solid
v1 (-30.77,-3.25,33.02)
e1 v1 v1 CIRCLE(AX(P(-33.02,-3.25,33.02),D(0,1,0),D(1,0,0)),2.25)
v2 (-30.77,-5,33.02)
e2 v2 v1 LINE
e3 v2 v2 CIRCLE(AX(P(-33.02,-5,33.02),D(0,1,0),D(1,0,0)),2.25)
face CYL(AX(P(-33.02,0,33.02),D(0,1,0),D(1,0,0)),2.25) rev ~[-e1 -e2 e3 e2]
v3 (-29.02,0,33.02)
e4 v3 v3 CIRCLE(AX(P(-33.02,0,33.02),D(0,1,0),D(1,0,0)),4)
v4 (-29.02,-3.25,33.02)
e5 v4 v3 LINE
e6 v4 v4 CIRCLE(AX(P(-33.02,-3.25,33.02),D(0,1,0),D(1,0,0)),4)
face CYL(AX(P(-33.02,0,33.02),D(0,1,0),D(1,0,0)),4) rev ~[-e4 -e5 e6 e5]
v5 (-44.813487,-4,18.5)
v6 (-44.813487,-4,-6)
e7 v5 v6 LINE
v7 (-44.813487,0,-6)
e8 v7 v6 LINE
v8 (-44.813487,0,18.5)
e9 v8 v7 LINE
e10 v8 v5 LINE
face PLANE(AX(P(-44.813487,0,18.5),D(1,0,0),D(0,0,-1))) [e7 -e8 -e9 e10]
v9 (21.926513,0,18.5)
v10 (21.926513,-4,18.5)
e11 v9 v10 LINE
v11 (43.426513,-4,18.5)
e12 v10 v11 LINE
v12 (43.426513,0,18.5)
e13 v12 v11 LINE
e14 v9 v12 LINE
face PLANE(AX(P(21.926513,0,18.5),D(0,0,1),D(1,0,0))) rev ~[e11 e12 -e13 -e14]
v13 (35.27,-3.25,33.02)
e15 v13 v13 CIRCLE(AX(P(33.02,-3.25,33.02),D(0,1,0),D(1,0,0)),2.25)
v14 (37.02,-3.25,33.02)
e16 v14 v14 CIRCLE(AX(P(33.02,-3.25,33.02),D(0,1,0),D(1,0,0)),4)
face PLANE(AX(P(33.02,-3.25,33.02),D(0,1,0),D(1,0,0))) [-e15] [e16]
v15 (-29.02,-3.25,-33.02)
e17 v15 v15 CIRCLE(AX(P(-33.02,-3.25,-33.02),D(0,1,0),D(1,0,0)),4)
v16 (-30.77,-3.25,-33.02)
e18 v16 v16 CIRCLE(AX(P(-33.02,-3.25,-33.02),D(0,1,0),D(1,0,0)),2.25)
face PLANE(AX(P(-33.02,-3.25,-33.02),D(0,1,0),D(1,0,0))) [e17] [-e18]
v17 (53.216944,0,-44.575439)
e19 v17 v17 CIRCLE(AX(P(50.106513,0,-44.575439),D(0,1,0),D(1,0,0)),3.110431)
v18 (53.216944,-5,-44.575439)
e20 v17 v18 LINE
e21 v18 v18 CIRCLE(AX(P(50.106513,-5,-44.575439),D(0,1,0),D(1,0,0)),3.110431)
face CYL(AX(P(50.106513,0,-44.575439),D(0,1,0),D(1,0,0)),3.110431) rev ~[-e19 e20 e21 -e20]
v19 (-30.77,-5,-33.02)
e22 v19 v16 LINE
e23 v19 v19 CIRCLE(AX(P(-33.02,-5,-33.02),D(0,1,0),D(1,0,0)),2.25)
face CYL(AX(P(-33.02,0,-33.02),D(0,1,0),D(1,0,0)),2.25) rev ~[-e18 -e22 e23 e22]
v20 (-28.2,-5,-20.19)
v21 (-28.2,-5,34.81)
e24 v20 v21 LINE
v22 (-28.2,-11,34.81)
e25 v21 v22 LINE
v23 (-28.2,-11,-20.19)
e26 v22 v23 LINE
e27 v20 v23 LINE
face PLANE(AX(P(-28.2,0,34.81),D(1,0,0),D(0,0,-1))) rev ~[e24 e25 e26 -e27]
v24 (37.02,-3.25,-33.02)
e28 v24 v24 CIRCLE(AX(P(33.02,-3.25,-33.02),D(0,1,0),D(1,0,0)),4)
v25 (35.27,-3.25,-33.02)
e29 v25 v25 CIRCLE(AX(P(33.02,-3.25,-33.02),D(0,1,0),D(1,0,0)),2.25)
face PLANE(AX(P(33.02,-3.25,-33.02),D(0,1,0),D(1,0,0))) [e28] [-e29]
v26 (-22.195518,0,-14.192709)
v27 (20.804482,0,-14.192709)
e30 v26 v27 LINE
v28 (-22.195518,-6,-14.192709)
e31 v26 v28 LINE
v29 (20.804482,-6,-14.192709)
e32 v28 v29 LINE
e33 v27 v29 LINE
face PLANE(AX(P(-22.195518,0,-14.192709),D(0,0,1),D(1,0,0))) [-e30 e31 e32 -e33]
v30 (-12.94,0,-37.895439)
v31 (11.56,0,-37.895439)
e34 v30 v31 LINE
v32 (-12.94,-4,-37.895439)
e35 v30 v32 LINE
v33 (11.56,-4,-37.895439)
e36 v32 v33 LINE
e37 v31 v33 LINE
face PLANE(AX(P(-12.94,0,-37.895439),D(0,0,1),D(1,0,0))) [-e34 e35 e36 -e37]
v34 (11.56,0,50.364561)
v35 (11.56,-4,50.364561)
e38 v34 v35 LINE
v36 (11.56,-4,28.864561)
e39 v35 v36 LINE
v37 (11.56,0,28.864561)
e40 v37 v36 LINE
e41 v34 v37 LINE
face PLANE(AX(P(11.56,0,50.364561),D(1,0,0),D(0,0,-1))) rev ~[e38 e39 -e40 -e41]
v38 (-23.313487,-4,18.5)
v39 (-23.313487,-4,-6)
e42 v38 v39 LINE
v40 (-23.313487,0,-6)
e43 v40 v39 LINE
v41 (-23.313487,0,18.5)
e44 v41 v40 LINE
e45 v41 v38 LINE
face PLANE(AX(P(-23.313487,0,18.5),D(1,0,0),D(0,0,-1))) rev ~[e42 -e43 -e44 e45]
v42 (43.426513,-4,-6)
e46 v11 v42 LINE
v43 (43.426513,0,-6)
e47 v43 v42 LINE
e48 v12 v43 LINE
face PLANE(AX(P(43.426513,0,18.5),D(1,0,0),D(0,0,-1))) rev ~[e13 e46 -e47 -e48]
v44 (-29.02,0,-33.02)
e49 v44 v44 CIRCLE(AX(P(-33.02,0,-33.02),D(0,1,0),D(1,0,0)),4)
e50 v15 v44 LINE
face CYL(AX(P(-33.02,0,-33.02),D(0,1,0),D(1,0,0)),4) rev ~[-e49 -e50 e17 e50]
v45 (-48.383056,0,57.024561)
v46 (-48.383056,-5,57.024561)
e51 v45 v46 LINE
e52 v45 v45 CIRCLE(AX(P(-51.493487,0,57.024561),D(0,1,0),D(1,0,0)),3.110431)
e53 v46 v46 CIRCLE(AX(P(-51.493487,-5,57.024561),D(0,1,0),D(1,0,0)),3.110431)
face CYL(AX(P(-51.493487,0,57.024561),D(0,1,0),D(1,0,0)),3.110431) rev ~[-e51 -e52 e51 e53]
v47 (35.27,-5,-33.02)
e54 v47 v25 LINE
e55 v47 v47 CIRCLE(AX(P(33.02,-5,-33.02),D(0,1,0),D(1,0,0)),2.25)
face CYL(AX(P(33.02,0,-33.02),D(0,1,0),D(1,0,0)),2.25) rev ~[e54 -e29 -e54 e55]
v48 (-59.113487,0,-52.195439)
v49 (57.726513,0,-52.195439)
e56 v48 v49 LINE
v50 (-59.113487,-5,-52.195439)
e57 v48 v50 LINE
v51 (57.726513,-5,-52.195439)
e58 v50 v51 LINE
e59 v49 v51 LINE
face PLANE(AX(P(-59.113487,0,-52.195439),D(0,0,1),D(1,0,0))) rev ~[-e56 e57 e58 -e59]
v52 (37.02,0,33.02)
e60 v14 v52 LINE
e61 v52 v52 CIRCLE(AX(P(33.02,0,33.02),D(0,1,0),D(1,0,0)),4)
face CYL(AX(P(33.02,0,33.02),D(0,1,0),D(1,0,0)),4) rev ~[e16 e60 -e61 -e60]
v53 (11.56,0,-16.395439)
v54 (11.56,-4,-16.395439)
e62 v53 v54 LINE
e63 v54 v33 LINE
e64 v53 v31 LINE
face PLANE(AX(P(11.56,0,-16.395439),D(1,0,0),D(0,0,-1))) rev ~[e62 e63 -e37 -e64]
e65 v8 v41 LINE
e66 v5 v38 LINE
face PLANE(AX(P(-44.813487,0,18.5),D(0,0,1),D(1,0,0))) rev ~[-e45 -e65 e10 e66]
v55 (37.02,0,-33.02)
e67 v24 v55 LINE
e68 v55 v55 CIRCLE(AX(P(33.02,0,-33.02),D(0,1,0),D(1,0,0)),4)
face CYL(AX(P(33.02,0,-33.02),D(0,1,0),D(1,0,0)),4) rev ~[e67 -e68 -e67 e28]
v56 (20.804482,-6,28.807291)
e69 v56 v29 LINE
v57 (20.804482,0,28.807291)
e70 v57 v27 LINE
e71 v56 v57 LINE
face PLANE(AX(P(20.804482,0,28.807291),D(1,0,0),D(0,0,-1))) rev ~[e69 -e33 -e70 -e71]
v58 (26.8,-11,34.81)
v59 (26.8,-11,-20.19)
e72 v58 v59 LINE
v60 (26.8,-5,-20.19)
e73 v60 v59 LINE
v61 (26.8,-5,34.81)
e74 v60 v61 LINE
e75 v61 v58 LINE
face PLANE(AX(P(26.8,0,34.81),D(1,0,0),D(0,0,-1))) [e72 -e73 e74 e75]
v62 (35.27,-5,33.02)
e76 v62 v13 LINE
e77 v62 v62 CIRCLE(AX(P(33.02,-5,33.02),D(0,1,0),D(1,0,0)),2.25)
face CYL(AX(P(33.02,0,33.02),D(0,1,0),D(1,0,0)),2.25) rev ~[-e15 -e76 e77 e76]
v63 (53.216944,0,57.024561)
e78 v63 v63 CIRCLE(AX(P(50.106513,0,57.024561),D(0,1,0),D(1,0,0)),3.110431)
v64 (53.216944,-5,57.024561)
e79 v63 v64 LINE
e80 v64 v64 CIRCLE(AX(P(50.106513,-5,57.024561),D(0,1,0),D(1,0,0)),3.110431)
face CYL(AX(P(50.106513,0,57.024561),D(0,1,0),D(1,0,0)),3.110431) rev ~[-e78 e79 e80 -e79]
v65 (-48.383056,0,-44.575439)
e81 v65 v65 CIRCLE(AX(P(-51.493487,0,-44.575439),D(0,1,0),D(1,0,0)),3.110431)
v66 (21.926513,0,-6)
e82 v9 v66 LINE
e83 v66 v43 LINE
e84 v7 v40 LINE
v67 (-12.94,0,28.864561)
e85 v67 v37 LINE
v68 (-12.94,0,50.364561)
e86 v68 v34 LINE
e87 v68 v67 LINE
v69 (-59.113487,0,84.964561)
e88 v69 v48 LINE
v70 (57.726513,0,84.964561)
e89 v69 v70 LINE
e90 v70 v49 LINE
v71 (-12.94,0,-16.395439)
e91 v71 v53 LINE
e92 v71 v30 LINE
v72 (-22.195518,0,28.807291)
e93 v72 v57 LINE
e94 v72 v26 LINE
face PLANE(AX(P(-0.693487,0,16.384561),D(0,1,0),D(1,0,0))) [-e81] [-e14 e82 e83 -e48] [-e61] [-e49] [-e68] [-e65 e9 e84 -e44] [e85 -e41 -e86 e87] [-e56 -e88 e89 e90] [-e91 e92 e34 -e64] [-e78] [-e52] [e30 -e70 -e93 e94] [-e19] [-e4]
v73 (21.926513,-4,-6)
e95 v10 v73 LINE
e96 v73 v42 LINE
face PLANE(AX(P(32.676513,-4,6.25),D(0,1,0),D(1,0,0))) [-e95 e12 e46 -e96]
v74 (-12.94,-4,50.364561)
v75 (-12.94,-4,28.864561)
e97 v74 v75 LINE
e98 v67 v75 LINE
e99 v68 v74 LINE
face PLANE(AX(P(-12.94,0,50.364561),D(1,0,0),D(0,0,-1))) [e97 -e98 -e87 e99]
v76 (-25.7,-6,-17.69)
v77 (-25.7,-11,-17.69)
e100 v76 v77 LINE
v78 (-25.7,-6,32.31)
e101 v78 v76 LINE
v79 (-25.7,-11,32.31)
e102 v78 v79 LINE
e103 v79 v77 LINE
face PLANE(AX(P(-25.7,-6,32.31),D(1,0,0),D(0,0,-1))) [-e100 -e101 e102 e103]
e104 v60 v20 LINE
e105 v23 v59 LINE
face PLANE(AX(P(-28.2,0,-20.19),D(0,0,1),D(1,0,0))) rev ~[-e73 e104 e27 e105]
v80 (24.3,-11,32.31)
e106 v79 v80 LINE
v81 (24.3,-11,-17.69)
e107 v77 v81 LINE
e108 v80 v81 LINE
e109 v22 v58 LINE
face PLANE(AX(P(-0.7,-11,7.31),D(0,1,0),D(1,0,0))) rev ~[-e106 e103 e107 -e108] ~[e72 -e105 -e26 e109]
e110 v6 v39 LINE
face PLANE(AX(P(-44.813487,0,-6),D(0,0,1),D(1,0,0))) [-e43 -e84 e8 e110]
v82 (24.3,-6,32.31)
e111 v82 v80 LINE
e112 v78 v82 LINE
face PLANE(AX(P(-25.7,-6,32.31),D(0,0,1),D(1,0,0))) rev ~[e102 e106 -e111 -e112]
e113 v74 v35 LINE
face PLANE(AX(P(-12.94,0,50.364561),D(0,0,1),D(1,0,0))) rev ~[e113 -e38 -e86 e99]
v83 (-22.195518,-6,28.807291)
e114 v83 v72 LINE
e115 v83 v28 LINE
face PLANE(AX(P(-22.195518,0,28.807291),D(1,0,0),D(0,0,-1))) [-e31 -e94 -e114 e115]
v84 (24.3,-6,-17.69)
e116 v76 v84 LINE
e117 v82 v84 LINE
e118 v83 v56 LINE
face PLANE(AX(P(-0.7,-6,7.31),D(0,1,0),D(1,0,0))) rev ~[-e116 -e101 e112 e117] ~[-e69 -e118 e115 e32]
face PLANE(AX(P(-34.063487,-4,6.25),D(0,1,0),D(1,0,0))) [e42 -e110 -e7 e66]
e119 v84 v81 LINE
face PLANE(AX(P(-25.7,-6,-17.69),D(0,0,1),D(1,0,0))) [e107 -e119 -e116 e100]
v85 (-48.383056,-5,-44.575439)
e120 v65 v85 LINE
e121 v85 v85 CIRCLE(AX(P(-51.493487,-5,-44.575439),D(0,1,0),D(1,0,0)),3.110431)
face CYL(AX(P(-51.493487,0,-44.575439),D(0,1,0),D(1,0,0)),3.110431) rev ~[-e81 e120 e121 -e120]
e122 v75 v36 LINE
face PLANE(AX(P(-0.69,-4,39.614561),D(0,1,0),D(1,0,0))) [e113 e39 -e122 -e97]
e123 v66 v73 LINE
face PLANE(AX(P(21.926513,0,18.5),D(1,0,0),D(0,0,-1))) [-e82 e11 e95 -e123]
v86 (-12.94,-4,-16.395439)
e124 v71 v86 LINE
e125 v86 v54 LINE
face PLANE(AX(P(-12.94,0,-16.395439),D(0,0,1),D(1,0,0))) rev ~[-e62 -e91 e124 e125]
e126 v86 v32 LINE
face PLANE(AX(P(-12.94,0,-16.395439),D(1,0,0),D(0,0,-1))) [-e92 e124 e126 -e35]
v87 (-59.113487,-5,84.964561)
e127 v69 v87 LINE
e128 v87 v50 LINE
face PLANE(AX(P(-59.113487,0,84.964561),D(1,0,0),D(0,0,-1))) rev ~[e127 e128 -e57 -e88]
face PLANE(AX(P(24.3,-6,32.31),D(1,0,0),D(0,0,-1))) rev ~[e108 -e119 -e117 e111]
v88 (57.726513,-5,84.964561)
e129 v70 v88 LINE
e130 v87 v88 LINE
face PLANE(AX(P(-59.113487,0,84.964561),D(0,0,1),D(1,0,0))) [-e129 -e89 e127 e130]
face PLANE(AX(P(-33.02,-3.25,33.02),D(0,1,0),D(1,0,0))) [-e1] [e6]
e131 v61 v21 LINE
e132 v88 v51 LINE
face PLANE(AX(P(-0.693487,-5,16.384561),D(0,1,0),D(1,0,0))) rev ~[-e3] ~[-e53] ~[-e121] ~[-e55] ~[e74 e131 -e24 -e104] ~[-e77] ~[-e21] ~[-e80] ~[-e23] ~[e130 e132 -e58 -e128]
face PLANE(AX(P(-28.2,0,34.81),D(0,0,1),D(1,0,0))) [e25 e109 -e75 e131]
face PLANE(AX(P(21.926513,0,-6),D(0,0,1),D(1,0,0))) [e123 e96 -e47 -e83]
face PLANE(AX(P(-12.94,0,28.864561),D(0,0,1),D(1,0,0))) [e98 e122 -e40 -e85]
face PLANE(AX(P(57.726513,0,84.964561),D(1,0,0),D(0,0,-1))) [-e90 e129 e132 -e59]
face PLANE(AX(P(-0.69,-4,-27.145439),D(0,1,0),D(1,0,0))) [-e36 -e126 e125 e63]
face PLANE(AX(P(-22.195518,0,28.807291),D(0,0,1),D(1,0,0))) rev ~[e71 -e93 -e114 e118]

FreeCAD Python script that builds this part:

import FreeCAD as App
import Part
import Sketcher
from FreeCAD import Vector
Q = App.Units.Quantity


def add_polygon(sketch, points):
    """Adds a closed chain of lines whose ends are joined by coincident constraints."""
    first, n = sketch.GeometryCount, len(points)
    for a, b in zip(points, points[1:] + points[:1]):
        sketch.addGeometry(Part.LineSegment(App.Vector(*a, 0), App.Vector(*b, 0)), False)
    for i in range(n):
        sketch.addConstraint(Sketcher.Constraint("Coincident", first + i, 2, first + (i + 1) % n, 1))

doc = App.newDocument("Part")
params = doc.addObject("Spreadsheet::Sheet", "Params")
for row, (alias, value) in enumerate([
    ("sketch1_width", "116.84 mm"),
    ("sketch1_height", "137.16 mm"),
    ("pad1_length", "5 mm"),
    ("sketch2_width", "85 mm"),
    ("pad2_length", "5 mm"),
    ("sketch3_width", "50 mm"),
    ("pad3_length", "6 mm"),
    ("sketch4_width", "43 mm"),
    ("pad4_length", "50 mm"),
    ("sketch5_width", "55 mm"),
    ("pad5_length", "11 mm"),
    ("sketch6_diameter", "4.5 mm"),
    ("pad6_length", "50 mm"),
    ("sketch7_diameter", "4.5 mm"),
    ("pad7_length", "50 mm"),
    ("sketch8_diameter", "4.5 mm"),
    ("pad8_length", "50 mm"),
    ("sketch9_diameter", "4.5 mm"),
    ("pad9_length", "50 mm"),
    ("sketch10_width", "24.5 mm"),
    ("sketch10_height", "21.5 mm"),
    ("pad10_length", "4 mm"),
    ("sketch11_width", "21.5 mm"),
    ("sketch11_height", "24.5 mm"),
    ("pad11_length", "4 mm"),
    ("sketch12_width", "21.5 mm"),
    ("sketch12_height", "24.5 mm"),
    ("pad12_length", "4 mm"),
    ("sketch13_width", "24.5 mm"),
    ("sketch13_height", "21.5 mm"),
    ("pad13_length", "4 mm"),
    ("sketch14_diameter", "8 mm"),
    ("pad14_length", "10 mm"),
    ("pad14_length2", "3.25 mm"),
    ("sketch15_diameter", "8 mm"),
    ("pad15_length", "10 mm"),
    ("pad15_length2", "3.25 mm"),
    ("sketch16_diameter", "8 mm"),
    ("pad16_length", "10 mm"),
    ("pad16_length2", "3.25 mm"),
    ("sketch17_diameter", "8 mm"),
    ("pad17_length", "10 mm"),
    ("pad17_length2", "3.25 mm"),
], start=1):
    params.set(f"A{row}", alias)
    params.set(f"B{row}", "=" + value)
    params.setAlias(f"B{row}", alias)

body = doc.addObject("PartDesign::Body", "Body")

sketch1 = body.newObject("Sketcher::SketchObject", "Sketch")
sketch1.AttachmentSupport = (doc.getObject("XZ_Plane"), [""])
sketch1.MapMode = "FlatFace"
add_polygon(sketch1, [(-59.113487, -52.195439), (-59.113487, 84.964561), (57.726513, 84.964561), (57.726513, -52.195439)])
sketch1.addGeometry(Part.Circle(Vector(-51.493487, 57.024561, 0), Vector(0, 0, 1), 3.110431), False)
sketch1.addGeometry(Part.Circle(Vector(50.106513, 57.024561, 0), Vector(0, 0, 1), 3.110431), False)
sketch1.addGeometry(Part.Circle(Vector(-51.493487, -44.575439, 0), Vector(0, 0, 1), 3.110431), False)
sketch1.addGeometry(Part.Circle(Vector(50.106513, -44.575439, 0), Vector(0, 0, 1), 3.110431), False)
sketch1.addConstraint([
    Sketcher.Constraint("Vertical", 0),
    Sketcher.Constraint("Horizontal", 1),
    Sketcher.Constraint("Vertical", 2),
    Sketcher.Constraint("Horizontal", 3),
    Sketcher.Constraint("Equal", 4, 5),
    Sketcher.Constraint("Equal", 5, 6),
    Sketcher.Constraint("Equal", 6, 7),
    Sketcher.Constraint("Horizontal", 4, 3, 5, 3),
    Sketcher.Constraint("Horizontal", 6, 3, 7, 3),
    Sketcher.Constraint("Vertical", 4, 3, 6, 3),
    Sketcher.Constraint("Vertical", 5, 3, 7, 3),
    Sketcher.Constraint("DistanceX", 1, 1, 1, 2, Q("116.84 mm")),
    Sketcher.Constraint("DistanceY", 0, 1, 0, 2, Q("137.16 mm")),
    Sketcher.Constraint("DistanceX", 4, 3, 5, 3, Q("101.6 mm")),
    Sketcher.Constraint("DistanceY", 6, 3, 4, 3, Q("101.6 mm")),
    Sketcher.Constraint("Diameter", 4, Q("6.220861 mm")),
    Sketcher.Constraint("DistanceX", 0, 2, 4, 3, Q("7.62 mm")),
    Sketcher.Constraint("DistanceY", 4, 3, 0, 2, Q("27.94 mm")),
    Sketcher.Constraint("DistanceY", -1, 1, 4, 3, Q("57.024561 mm")),
    Sketcher.Constraint("DistanceX", 4, 3, -1, 1, Q("51.493487 mm")),
])
sketch1.setExpression("Constraints[15]", "Params.sketch1_width")
sketch1.setExpression("Constraints[16]", "Params.sketch1_height")
pad1 = body.newObject("PartDesign::Pad", "Pad")
pad1.Profile = sketch1
pad1.setExpression("Length", "Params.pad1_length")
body2 = doc.addObject("PartDesign::Body", "Body001")

sketch2 = body2.newObject("Sketcher::SketchObject", "Sketch001")
sketch2.AttachmentSupport = (doc.getObject("XZ_Plane001"), [""])
sketch2.MapMode = "FlatFace"
add_polygon(sketch2, [(-42.5, -69.987523), (-42.5, -46.012477), (42.5, -46.012477), (42.5, -69.987523)])
sketch2.addConstraint([
    Sketcher.Constraint("Vertical", 0),
    Sketcher.Constraint("Horizontal", 1),
    Sketcher.Constraint("Vertical", 2),
    Sketcher.Constraint("Horizontal", 3),
    Sketcher.Constraint("DistanceX", 1, 1, 1, 2, Q("85 mm")),
    Sketcher.Constraint("DistanceX", 0, 2, -1, 1, Q("42.5 mm")),
    Sketcher.Constraint("DistanceY", 0, 1, 0, 2, Q("23.975047 mm")),
    Sketcher.Constraint("DistanceY", 0, 2, -1, 1, Q("46.012477 mm")),
])
sketch2.setExpression("Constraints[8]", "Params.sketch2_width")
pad2 = body2.newObject("PartDesign::Pad", "Pad001")
pad2.Profile = sketch2
pad2.setExpression("Length", "Params.pad2_length")
pad2.Reversed = True
body3 = doc.addObject("PartDesign::Body", "Body002")

sketch3 = body3.newObject("Sketcher::SketchObject", "Sketch002")
sketch3.AttachmentSupport = (doc.getObject("XZ_Plane002"), [""])
sketch3.MapMode = "FlatFace"
add_polygon(sketch3, [(-25.7, -17.69), (-25.7, 32.31), (24.3, 32.31), (24.3, -17.69)])
sketch3.addConstraint([
    Sketcher.Constraint("Vertical", 0),
    Sketcher.Constraint("Horizontal", 1),
    Sketcher.Constraint("Vertical", 2),
    Sketcher.Constraint("Horizontal", 3),
    Sketcher.Constraint("Equal", 3, 0),
    Sketcher.Constraint("DistanceX", 1, 1, 1, 2, Q("50 mm")),
    Sketcher.Constraint("DistanceX", 0, 2, -1, 1, Q("25.7 mm")),
    Sketcher.Constraint("DistanceY", -1, 1, 0, 2, Q("32.31 mm")),
])
sketch3.setExpression("Constraints[9]", "Params.sketch3_width")
pad3 = body3.newObject("PartDesign::Pad", "Pad002")
pad3.Profile = sketch3
pad3.setExpression("Length", "Params.pad3_length")
body4 = doc.addObject("PartDesign::Body", "Body003")

sketch4 = body4.newObject("Sketcher::SketchObject", "Sketch003")
sketch4.AttachmentSupport = (doc.getObject("XZ_Plane003"), [""])
sketch4.MapMode = "FlatFace"
add_polygon(sketch4, [(-22.195518, -14.192709), (-22.195518, 28.807291), (20.804482, 28.807291), (20.804482, -14.192709)])
sketch4.addConstraint([
    Sketcher.Constraint("Vertical", 0),
    Sketcher.Constraint("Horizontal", 1),
    Sketcher.Constraint("Vertical", 2),
    Sketcher.Constraint("Horizontal", 3),
    Sketcher.Constraint("Equal", 3, 0),
    Sketcher.Constraint("DistanceX", 1, 1, 1, 2, Q("43 mm")),
    Sketcher.Constraint("DistanceY", -1, 1, 0, 2, Q("28.807291 mm")),
    Sketcher.Constraint("DistanceX", 0, 2, -1, 1, Q("22.195518 mm")),
])
sketch4.setExpression("Constraints[9]", "Params.sketch4_width")
pad4 = body4.newObject("PartDesign::Pad", "Pad003")
pad4.Profile = sketch4
pad4.setExpression("Length", "Params.pad4_length")
pad4.Midplane = True
body5 = doc.addObject("PartDesign::Body", "Body004")

sketch5 = body5.newObject("Sketcher::SketchObject", "Sketch004")
sketch5.AttachmentSupport = (doc.getObject("XZ_Plane004"), [""])
sketch5.MapMode = "FlatFace"
add_polygon(sketch5, [(-28.2, -20.19), (-28.2, 34.81), (26.8, 34.81), (26.8, -20.19)])
sketch5.addConstraint([
    Sketcher.Constraint("Vertical", 0),
    Sketcher.Constraint("Horizontal", 1),
    Sketcher.Constraint("Vertical", 2),
    Sketcher.Constraint("Horizontal", 3),
    Sketcher.Constraint("Equal", 3, 0),
    Sketcher.Constraint("DistanceX", 1, 1, 1, 2, Q("55 mm")),
    Sketcher.Constraint("DistanceX", 0, 2, -1, 1, Q("28.2 mm")),
    Sketcher.Constraint("DistanceY", -1, 1, 0, 2, Q("34.81 mm")),
])
sketch5.setExpression("Constraints[9]", "Params.sketch5_width")
pad5 = body5.newObject("PartDesign::Pad", "Pad004")
pad5.Profile = sketch5
pad5.setExpression("Length", "Params.pad5_length")
doc.recompute()

boolean = body.newObject("PartDesign::Boolean", "Boolean")
boolean.Type = "Cut"
boolean.addObjects([body2])
body6 = doc.addObject("PartDesign::Body", "Body005")
doc.recompute()

body3.Placement = App.Placement(Vector(0, -6, 0), App.Rotation(Vector(0, 0, 1), 0))
boolean2 = body6.newObject("PartDesign::Boolean", "Boolean001")
boolean2.Type = "Fuse"
boolean2.addObjects([body3])
doc.recompute()

boolean3 = body5.newObject("PartDesign::Boolean", "Boolean002")
boolean3.Type = "Cut"
boolean3.addObjects([body6])
doc.recompute()

boolean4 = body5.newObject("PartDesign::Boolean", "Boolean003")
boolean4.Type = "Fuse"
boolean4.addObjects([body])
doc.recompute()

boolean5 = body5.newObject("PartDesign::Boolean", "Boolean004")
boolean5.Type = "Cut"
boolean5.addObjects([body4])
body7 = doc.addObject("PartDesign::Body", "Body006")

sketch6 = body7.newObject("Sketcher::SketchObject", "Sketch005")
sketch6.AttachmentSupport = (doc.getObject("XZ_Plane006"), [""])
sketch6.MapMode = "FlatFace"
sketch6.addGeometry(Part.Circle(Vector(33.02, -33.02, 0), Vector(0, 0, 1), 2.25), False)
sketch6.addConstraint([
    Sketcher.Constraint("Diameter", 0, Q("4.5 mm")),
    Sketcher.Constraint("DistanceX", -1, 1, 0, 3, Q("33.02 mm")),
    Sketcher.Constraint("DistanceY", 0, 3, -1, 1, Q("33.02 mm")),
])
sketch6.setExpression("Constraints[0]", "Params.sketch6_diameter")
pad6 = body7.newObject("PartDesign::Pad", "Pad005")
pad6.Profile = sketch6
pad6.setExpression("Length", "Params.pad6_length")
pad6.Midplane = True
body8 = doc.addObject("PartDesign::Body", "Body007")

sketch7 = body8.newObject("Sketcher::SketchObject", "Sketch006")
sketch7.AttachmentSupport = (doc.getObject("XZ_Plane007"), [""])
sketch7.MapMode = "FlatFace"
sketch7.addGeometry(Part.Circle(Vector(33.02, 33.02, 0), Vector(0, 0, 1), 2.25), False)
sketch7.addConstraint([
    Sketcher.Constraint("Diameter", 0, Q("4.5 mm")),
    Sketcher.Constraint("DistanceX", -1, 1, 0, 3, Q("33.02 mm")),
    Sketcher.Constraint("DistanceY", -1, 1, 0, 3, Q("33.02 mm")),
])
sketch7.setExpression("Constraints[0]", "Params.sketch7_diameter")
pad7 = body8.newObject("PartDesign::Pad", "Pad006")
pad7.Profile = sketch7
pad7.setExpression("Length", "Params.pad7_length")
pad7.Midplane = True
body9 = doc.addObject("PartDesign::Body", "Body008")

sketch8 = body9.newObject("Sketcher::SketchObject", "Sketch007")
sketch8.AttachmentSupport = (doc.getObject("XZ_Plane008"), [""])
sketch8.MapMode = "FlatFace"
sketch8.addGeometry(Part.Circle(Vector(-33.02, 33.02, 0), Vector(0, 0, 1), 2.25), False)
sketch8.addConstraint([
    Sketcher.Constraint("Diameter", 0, Q("4.5 mm")),
    Sketcher.Constraint("DistanceX", 0, 3, -1, 1, Q("33.02 mm")),
    Sketcher.Constraint("DistanceY", -1, 1, 0, 3, Q("33.02 mm")),
])
sketch8.setExpression("Constraints[0]", "Params.sketch8_diameter")
pad8 = body9.newObject("PartDesign::Pad", "Pad007")
pad8.Profile = sketch8
pad8.setExpression("Length", "Params.pad8_length")
pad8.Midplane = True
body10 = doc.addObject("PartDesign::Body", "Body009")

sketch9 = body10.newObject("Sketcher::SketchObject", "Sketch008")
sketch9.AttachmentSupport = (doc.getObject("XZ_Plane009"), [""])
sketch9.MapMode = "FlatFace"
sketch9.addGeometry(Part.Circle(Vector(-33.02, -33.02, 0), Vector(0, 0, 1), 2.25), False)
sketch9.addConstraint([
    Sketcher.Constraint("Diameter", 0, Q("4.5 mm")),
    Sketcher.Constraint("DistanceX", 0, 3, -1, 1, Q("33.02 mm")),
    Sketcher.Constraint("DistanceY", 0, 3, -1, 1, Q("33.02 mm")),
])
sketch9.setExpression("Constraints[0]", "Params.sketch9_diameter")
pad9 = body10.newObject("PartDesign::Pad", "Pad008")
pad9.Profile = sketch9
pad9.setExpression("Length", "Params.pad9_length")
pad9.Midplane = True
doc.recompute()

boolean6 = body5.newObject("PartDesign::Boolean", "Boolean005")
boolean6.Type = "Cut"
boolean6.addObjects([body9])
doc.recompute()

boolean7 = body5.newObject("PartDesign::Boolean", "Boolean006")
boolean7.Type = "Cut"
boolean7.addObjects([body8])
doc.recompute()

boolean8 = body5.newObject("PartDesign::Boolean", "Boolean007")
boolean8.Type = "Cut"
boolean8.addObjects([body7])
doc.recompute()

boolean9 = body5.newObject("PartDesign::Boolean", "Boolean008")
boolean9.Type = "Cut"
boolean9.addObjects([body10])
body11 = doc.addObject("PartDesign::Body", "Body010")

sketch10 = body11.newObject("Sketcher::SketchObject", "Sketch009")
sketch10.AttachmentSupport = (doc.getObject("XZ_Plane010"), [""])
sketch10.MapMode = "FlatFace"
add_polygon(sketch10, [(-12.94, -37.895439), (-12.94, -16.395439), (11.56, -16.395439), (11.56, -37.895439)])
sketch10.addConstraint([
    Sketcher.Constraint("Vertical", 0),
    Sketcher.Constraint("Horizontal", 1),
    Sketcher.Constraint("Vertical", 2),
    Sketcher.Constraint("Horizontal", 3),
    Sketcher.Constraint("DistanceX", 1, 1, 1, 2, Q("24.5 mm")),
    Sketcher.Constraint("DistanceY", 0, 1, 0, 2, Q("21.5 mm")),
    Sketcher.Constraint("DistanceX", 0, 2, -1, 1, Q("12.94 mm")),
    Sketcher.Constraint("DistanceY", 0, 2, -1, 1, Q("16.395439 mm")),
])
sketch10.setExpression("Constraints[8]", "Params.sketch10_width")
sketch10.setExpression("Constraints[9]", "Params.sketch10_height")
pad10 = body11.newObject("PartDesign::Pad", "Pad009")
pad10.Profile = sketch10
pad10.setExpression("Length", "Params.pad10_length")
body12 = doc.addObject("PartDesign::Body", "Body011")

sketch11 = body12.newObject("Sketcher::SketchObject", "Sketch010")
sketch11.AttachmentSupport = (doc.getObject("XZ_Plane011"), [""])
sketch11.MapMode = "FlatFace"
add_polygon(sketch11, [(21.926513, -6), (21.926513, 18.5), (43.426513, 18.5), (43.426513, -6)])
sketch11.addConstraint([
    Sketcher.Constraint("Vertical", 0),
    Sketcher.Constraint("Horizontal", 1),
    Sketcher.Constraint("Vertical", 2),
    Sketcher.Constraint("Horizontal", 3),
    Sketcher.Constraint("DistanceX", 1, 1, 1, 2, Q("21.5 mm")),
    Sketcher.Constraint("DistanceY", 0, 1, 0, 2, Q("24.5 mm")),
    Sketcher.Constraint("DistanceY", 2, 2, -1, 1, Q("6 mm")),
    Sketcher.Constraint("DistanceX", -1, 1, 0, 2, Q("21.926513 mm")),
])
sketch11.setExpression("Constraints[8]", "Params.sketch11_width")
sketch11.setExpression("Constraints[9]", "Params.sketch11_height")
pad11 = body12.newObject("PartDesign::Pad", "Pad010")
pad11.Profile = sketch11
pad11.setExpression("Length", "Params.pad11_length")
body13 = doc.addObject("PartDesign::Body", "Body012")

sketch12 = body13.newObject("Sketcher::SketchObject", "Sketch011")
sketch12.AttachmentSupport = (doc.getObject("XZ_Plane012"), [""])
sketch12.MapMode = "FlatFace"
add_polygon(sketch12, [(-44.813487, -6), (-44.813487, 18.5), (-23.313487, 18.5), (-23.313487, -6)])
sketch12.addConstraint([
    Sketcher.Constraint("Vertical", 0),
    Sketcher.Constraint("Horizontal", 1),
    Sketcher.Constraint("Vertical", 2),
    Sketcher.Constraint("Horizontal", 3),
    Sketcher.Constraint("DistanceX", 1, 1, 1, 2, Q("21.5 mm")),
    Sketcher.Constraint("DistanceY", 0, 1, 0, 2, Q("24.5 mm")),
    Sketcher.Constraint("DistanceY", 2, 2, -1, 1, Q("6 mm")),
    Sketcher.Constraint("DistanceX", 0, 2, -1, 1, Q("44.813487 mm")),
])
sketch12.setExpression("Constraints[8]", "Params.sketch12_width")
sketch12.setExpression("Constraints[9]", "Params.sketch12_height")
pad12 = body13.newObject("PartDesign::Pad", "Pad011")
pad12.Profile = sketch12
pad12.setExpression("Length", "Params.pad12_length")
body14 = doc.addObject("PartDesign::Body", "Body013")

sketch13 = body14.newObject("Sketcher::SketchObject", "Sketch012")
sketch13.AttachmentSupport = (doc.getObject("XZ_Plane013"), [""])
sketch13.MapMode = "FlatFace"
add_polygon(sketch13, [(-12.94, 28.864561), (-12.94, 50.364561), (11.56, 50.364561), (11.56, 28.864561)])
sketch13.addConstraint([
    Sketcher.Constraint("Vertical", 0),
    Sketcher.Constraint("Horizontal", 1),
    Sketcher.Constraint("Vertical", 2),
    Sketcher.Constraint("Horizontal", 3),
    Sketcher.Constraint("DistanceX", 1, 1, 1, 2, Q("24.5 mm")),
    Sketcher.Constraint("DistanceY", 0, 1, 0, 2, Q("21.5 mm")),
    Sketcher.Constraint("DistanceX", 0, 2, -1, 1, Q("12.94 mm")),
    Sketcher.Constraint("DistanceY", -1, 1, 0, 2, Q("50.364561 mm")),
])
sketch13.setExpression("Constraints[8]", "Params.sketch13_width")
sketch13.setExpression("Constraints[9]", "Params.sketch13_height")
pad13 = body14.newObject("PartDesign::Pad", "Pad012")
pad13.Profile = sketch13
pad13.setExpression("Length", "Params.pad13_length")
doc.recompute()

boolean10 = body5.newObject("PartDesign::Boolean", "Boolean009")
boolean10.Type = "Cut"
boolean10.addObjects([body12])
doc.recompute()

boolean11 = body5.newObject("PartDesign::Boolean", "Boolean010")
boolean11.Type = "Cut"
boolean11.addObjects([body11])
doc.recompute()

boolean12 = body5.newObject("PartDesign::Boolean", "Boolean011")
boolean12.Type = "Cut"
boolean12.addObjects([body14])
doc.recompute()

boolean13 = body5.newObject("PartDesign::Boolean", "Boolean012")
boolean13.Type = "Cut"
boolean13.addObjects([body13])
body15 = doc.addObject("PartDesign::Body", "Body014")

sketch14 = body15.newObject("Sketcher::SketchObject", "Sketch013")
sketch14.AttachmentSupport = (doc.getObject("XZ_Plane014"), [""])
sketch14.MapMode = "FlatFace"
sketch14.addGeometry(Part.Circle(Vector(33.02, -33.02, 0), Vector(0, 0, 1), 4), False)
sketch14.addConstraint([
    Sketcher.Constraint("Diameter", 0, Q("8 mm")),
    Sketcher.Constraint("DistanceX", -1, 1, 0, 3, Q("33.02 mm")),
    Sketcher.Constraint("DistanceY", 0, 3, -1, 1, Q("33.02 mm")),
])
sketch14.setExpression("Constraints[0]", "Params.sketch14_diameter")
pad14 = body15.newObject("PartDesign::Pad", "Pad013")
pad14.Profile = sketch14
pad14.Type = "TwoLengths"
pad14.setExpression("Length", "Params.pad14_length")
pad14.setExpression("Length2", "Params.pad14_length2")
pad14.Reversed = True
body16 = doc.addObject("PartDesign::Body", "Body015")

sketch15 = body16.newObject("Sketcher::SketchObject", "Sketch014")
sketch15.AttachmentSupport = (doc.getObject("XZ_Plane015"), [""])
sketch15.MapMode = "FlatFace"
sketch15.addGeometry(Part.Circle(Vector(-33.02, -33.02, 0), Vector(0, 0, 1), 4), False)
sketch15.addConstraint([
    Sketcher.Constraint("Diameter", 0, Q("8 mm")),
    Sketcher.Constraint("DistanceX", 0, 3, -1, 1, Q("33.02 mm")),
    Sketcher.Constraint("DistanceY", 0, 3, -1, 1, Q("33.02 mm")),
])
sketch15.setExpression("Constraints[0]", "Params.sketch15_diameter")
pad15 = body16.newObject("PartDesign::Pad", "Pad014")
pad15.Profile = sketch15
pad15.Type = "TwoLengths"
pad15.setExpression("Length", "Params.pad15_length")
pad15.setExpression("Length2", "Params.pad15_length2")
pad15.Reversed = True
body17 = doc.addObject("PartDesign::Body", "Body016")

sketch16 = body17.newObject("Sketcher::SketchObject", "Sketch015")
sketch16.AttachmentSupport = (doc.getObject("XZ_Plane016"), [""])
sketch16.MapMode = "FlatFace"
sketch16.addGeometry(Part.Circle(Vector(-33.02, 33.02, 0), Vector(0, 0, 1), 4), False)
sketch16.addConstraint([
    Sketcher.Constraint("Diameter", 0, Q("8 mm")),
    Sketcher.Constraint("DistanceX", 0, 3, -1, 1, Q("33.02 mm")),
    Sketcher.Constraint("DistanceY", -1, 1, 0, 3, Q("33.02 mm")),
])
sketch16.setExpression("Constraints[0]", "Params.sketch16_diameter")
pad16 = body17.newObject("PartDesign::Pad", "Pad015")
pad16.Profile = sketch16
pad16.Type = "TwoLengths"
pad16.setExpression("Length", "Params.pad16_length")
pad16.setExpression("Length2", "Params.pad16_length2")
pad16.Reversed = True
body18 = doc.addObject("PartDesign::Body", "Body017")

sketch17 = body18.newObject("Sketcher::SketchObject", "Sketch016")
sketch17.AttachmentSupport = (doc.getObject("XZ_Plane017"), [""])
sketch17.MapMode = "FlatFace"
sketch17.addGeometry(Part.Circle(Vector(33.02, 33.02, 0), Vector(0, 0, 1), 4), False)
sketch17.addConstraint([
    Sketcher.Constraint("Diameter", 0, Q("8 mm")),
    Sketcher.Constraint("DistanceX", -1, 1, 0, 3, Q("33.02 mm")),
    Sketcher.Constraint("DistanceY", -1, 1, 0, 3, Q("33.02 mm")),
])
sketch17.setExpression("Constraints[0]", "Params.sketch17_diameter")
pad17 = body18.newObject("PartDesign::Pad", "Pad016")
pad17.Profile = sketch17
pad17.Type = "TwoLengths"
pad17.setExpression("Length", "Params.pad17_length")
pad17.setExpression("Length2", "Params.pad17_length2")
pad17.Reversed = True
doc.recompute()

boolean14 = body5.newObject("PartDesign::Boolean", "Boolean013")
boolean14.Type = "Cut"
boolean14.addObjects([body17])
doc.recompute()

boolean15 = body5.newObject("PartDesign::Boolean", "Boolean014")
boolean15.Type = "Cut"
boolean15.addObjects([body16])
doc.recompute()

boolean16 = body5.newObject("PartDesign::Boolean", "Boolean015")
boolean16.Type = "Cut"
boolean16.addObjects([body15])
doc.recompute()

boolean17 = body5.newObject("PartDesign::Boolean", "Boolean016")
boolean17.Type = "Cut"
boolean17.addObjects([body18])

doc.recompute()
